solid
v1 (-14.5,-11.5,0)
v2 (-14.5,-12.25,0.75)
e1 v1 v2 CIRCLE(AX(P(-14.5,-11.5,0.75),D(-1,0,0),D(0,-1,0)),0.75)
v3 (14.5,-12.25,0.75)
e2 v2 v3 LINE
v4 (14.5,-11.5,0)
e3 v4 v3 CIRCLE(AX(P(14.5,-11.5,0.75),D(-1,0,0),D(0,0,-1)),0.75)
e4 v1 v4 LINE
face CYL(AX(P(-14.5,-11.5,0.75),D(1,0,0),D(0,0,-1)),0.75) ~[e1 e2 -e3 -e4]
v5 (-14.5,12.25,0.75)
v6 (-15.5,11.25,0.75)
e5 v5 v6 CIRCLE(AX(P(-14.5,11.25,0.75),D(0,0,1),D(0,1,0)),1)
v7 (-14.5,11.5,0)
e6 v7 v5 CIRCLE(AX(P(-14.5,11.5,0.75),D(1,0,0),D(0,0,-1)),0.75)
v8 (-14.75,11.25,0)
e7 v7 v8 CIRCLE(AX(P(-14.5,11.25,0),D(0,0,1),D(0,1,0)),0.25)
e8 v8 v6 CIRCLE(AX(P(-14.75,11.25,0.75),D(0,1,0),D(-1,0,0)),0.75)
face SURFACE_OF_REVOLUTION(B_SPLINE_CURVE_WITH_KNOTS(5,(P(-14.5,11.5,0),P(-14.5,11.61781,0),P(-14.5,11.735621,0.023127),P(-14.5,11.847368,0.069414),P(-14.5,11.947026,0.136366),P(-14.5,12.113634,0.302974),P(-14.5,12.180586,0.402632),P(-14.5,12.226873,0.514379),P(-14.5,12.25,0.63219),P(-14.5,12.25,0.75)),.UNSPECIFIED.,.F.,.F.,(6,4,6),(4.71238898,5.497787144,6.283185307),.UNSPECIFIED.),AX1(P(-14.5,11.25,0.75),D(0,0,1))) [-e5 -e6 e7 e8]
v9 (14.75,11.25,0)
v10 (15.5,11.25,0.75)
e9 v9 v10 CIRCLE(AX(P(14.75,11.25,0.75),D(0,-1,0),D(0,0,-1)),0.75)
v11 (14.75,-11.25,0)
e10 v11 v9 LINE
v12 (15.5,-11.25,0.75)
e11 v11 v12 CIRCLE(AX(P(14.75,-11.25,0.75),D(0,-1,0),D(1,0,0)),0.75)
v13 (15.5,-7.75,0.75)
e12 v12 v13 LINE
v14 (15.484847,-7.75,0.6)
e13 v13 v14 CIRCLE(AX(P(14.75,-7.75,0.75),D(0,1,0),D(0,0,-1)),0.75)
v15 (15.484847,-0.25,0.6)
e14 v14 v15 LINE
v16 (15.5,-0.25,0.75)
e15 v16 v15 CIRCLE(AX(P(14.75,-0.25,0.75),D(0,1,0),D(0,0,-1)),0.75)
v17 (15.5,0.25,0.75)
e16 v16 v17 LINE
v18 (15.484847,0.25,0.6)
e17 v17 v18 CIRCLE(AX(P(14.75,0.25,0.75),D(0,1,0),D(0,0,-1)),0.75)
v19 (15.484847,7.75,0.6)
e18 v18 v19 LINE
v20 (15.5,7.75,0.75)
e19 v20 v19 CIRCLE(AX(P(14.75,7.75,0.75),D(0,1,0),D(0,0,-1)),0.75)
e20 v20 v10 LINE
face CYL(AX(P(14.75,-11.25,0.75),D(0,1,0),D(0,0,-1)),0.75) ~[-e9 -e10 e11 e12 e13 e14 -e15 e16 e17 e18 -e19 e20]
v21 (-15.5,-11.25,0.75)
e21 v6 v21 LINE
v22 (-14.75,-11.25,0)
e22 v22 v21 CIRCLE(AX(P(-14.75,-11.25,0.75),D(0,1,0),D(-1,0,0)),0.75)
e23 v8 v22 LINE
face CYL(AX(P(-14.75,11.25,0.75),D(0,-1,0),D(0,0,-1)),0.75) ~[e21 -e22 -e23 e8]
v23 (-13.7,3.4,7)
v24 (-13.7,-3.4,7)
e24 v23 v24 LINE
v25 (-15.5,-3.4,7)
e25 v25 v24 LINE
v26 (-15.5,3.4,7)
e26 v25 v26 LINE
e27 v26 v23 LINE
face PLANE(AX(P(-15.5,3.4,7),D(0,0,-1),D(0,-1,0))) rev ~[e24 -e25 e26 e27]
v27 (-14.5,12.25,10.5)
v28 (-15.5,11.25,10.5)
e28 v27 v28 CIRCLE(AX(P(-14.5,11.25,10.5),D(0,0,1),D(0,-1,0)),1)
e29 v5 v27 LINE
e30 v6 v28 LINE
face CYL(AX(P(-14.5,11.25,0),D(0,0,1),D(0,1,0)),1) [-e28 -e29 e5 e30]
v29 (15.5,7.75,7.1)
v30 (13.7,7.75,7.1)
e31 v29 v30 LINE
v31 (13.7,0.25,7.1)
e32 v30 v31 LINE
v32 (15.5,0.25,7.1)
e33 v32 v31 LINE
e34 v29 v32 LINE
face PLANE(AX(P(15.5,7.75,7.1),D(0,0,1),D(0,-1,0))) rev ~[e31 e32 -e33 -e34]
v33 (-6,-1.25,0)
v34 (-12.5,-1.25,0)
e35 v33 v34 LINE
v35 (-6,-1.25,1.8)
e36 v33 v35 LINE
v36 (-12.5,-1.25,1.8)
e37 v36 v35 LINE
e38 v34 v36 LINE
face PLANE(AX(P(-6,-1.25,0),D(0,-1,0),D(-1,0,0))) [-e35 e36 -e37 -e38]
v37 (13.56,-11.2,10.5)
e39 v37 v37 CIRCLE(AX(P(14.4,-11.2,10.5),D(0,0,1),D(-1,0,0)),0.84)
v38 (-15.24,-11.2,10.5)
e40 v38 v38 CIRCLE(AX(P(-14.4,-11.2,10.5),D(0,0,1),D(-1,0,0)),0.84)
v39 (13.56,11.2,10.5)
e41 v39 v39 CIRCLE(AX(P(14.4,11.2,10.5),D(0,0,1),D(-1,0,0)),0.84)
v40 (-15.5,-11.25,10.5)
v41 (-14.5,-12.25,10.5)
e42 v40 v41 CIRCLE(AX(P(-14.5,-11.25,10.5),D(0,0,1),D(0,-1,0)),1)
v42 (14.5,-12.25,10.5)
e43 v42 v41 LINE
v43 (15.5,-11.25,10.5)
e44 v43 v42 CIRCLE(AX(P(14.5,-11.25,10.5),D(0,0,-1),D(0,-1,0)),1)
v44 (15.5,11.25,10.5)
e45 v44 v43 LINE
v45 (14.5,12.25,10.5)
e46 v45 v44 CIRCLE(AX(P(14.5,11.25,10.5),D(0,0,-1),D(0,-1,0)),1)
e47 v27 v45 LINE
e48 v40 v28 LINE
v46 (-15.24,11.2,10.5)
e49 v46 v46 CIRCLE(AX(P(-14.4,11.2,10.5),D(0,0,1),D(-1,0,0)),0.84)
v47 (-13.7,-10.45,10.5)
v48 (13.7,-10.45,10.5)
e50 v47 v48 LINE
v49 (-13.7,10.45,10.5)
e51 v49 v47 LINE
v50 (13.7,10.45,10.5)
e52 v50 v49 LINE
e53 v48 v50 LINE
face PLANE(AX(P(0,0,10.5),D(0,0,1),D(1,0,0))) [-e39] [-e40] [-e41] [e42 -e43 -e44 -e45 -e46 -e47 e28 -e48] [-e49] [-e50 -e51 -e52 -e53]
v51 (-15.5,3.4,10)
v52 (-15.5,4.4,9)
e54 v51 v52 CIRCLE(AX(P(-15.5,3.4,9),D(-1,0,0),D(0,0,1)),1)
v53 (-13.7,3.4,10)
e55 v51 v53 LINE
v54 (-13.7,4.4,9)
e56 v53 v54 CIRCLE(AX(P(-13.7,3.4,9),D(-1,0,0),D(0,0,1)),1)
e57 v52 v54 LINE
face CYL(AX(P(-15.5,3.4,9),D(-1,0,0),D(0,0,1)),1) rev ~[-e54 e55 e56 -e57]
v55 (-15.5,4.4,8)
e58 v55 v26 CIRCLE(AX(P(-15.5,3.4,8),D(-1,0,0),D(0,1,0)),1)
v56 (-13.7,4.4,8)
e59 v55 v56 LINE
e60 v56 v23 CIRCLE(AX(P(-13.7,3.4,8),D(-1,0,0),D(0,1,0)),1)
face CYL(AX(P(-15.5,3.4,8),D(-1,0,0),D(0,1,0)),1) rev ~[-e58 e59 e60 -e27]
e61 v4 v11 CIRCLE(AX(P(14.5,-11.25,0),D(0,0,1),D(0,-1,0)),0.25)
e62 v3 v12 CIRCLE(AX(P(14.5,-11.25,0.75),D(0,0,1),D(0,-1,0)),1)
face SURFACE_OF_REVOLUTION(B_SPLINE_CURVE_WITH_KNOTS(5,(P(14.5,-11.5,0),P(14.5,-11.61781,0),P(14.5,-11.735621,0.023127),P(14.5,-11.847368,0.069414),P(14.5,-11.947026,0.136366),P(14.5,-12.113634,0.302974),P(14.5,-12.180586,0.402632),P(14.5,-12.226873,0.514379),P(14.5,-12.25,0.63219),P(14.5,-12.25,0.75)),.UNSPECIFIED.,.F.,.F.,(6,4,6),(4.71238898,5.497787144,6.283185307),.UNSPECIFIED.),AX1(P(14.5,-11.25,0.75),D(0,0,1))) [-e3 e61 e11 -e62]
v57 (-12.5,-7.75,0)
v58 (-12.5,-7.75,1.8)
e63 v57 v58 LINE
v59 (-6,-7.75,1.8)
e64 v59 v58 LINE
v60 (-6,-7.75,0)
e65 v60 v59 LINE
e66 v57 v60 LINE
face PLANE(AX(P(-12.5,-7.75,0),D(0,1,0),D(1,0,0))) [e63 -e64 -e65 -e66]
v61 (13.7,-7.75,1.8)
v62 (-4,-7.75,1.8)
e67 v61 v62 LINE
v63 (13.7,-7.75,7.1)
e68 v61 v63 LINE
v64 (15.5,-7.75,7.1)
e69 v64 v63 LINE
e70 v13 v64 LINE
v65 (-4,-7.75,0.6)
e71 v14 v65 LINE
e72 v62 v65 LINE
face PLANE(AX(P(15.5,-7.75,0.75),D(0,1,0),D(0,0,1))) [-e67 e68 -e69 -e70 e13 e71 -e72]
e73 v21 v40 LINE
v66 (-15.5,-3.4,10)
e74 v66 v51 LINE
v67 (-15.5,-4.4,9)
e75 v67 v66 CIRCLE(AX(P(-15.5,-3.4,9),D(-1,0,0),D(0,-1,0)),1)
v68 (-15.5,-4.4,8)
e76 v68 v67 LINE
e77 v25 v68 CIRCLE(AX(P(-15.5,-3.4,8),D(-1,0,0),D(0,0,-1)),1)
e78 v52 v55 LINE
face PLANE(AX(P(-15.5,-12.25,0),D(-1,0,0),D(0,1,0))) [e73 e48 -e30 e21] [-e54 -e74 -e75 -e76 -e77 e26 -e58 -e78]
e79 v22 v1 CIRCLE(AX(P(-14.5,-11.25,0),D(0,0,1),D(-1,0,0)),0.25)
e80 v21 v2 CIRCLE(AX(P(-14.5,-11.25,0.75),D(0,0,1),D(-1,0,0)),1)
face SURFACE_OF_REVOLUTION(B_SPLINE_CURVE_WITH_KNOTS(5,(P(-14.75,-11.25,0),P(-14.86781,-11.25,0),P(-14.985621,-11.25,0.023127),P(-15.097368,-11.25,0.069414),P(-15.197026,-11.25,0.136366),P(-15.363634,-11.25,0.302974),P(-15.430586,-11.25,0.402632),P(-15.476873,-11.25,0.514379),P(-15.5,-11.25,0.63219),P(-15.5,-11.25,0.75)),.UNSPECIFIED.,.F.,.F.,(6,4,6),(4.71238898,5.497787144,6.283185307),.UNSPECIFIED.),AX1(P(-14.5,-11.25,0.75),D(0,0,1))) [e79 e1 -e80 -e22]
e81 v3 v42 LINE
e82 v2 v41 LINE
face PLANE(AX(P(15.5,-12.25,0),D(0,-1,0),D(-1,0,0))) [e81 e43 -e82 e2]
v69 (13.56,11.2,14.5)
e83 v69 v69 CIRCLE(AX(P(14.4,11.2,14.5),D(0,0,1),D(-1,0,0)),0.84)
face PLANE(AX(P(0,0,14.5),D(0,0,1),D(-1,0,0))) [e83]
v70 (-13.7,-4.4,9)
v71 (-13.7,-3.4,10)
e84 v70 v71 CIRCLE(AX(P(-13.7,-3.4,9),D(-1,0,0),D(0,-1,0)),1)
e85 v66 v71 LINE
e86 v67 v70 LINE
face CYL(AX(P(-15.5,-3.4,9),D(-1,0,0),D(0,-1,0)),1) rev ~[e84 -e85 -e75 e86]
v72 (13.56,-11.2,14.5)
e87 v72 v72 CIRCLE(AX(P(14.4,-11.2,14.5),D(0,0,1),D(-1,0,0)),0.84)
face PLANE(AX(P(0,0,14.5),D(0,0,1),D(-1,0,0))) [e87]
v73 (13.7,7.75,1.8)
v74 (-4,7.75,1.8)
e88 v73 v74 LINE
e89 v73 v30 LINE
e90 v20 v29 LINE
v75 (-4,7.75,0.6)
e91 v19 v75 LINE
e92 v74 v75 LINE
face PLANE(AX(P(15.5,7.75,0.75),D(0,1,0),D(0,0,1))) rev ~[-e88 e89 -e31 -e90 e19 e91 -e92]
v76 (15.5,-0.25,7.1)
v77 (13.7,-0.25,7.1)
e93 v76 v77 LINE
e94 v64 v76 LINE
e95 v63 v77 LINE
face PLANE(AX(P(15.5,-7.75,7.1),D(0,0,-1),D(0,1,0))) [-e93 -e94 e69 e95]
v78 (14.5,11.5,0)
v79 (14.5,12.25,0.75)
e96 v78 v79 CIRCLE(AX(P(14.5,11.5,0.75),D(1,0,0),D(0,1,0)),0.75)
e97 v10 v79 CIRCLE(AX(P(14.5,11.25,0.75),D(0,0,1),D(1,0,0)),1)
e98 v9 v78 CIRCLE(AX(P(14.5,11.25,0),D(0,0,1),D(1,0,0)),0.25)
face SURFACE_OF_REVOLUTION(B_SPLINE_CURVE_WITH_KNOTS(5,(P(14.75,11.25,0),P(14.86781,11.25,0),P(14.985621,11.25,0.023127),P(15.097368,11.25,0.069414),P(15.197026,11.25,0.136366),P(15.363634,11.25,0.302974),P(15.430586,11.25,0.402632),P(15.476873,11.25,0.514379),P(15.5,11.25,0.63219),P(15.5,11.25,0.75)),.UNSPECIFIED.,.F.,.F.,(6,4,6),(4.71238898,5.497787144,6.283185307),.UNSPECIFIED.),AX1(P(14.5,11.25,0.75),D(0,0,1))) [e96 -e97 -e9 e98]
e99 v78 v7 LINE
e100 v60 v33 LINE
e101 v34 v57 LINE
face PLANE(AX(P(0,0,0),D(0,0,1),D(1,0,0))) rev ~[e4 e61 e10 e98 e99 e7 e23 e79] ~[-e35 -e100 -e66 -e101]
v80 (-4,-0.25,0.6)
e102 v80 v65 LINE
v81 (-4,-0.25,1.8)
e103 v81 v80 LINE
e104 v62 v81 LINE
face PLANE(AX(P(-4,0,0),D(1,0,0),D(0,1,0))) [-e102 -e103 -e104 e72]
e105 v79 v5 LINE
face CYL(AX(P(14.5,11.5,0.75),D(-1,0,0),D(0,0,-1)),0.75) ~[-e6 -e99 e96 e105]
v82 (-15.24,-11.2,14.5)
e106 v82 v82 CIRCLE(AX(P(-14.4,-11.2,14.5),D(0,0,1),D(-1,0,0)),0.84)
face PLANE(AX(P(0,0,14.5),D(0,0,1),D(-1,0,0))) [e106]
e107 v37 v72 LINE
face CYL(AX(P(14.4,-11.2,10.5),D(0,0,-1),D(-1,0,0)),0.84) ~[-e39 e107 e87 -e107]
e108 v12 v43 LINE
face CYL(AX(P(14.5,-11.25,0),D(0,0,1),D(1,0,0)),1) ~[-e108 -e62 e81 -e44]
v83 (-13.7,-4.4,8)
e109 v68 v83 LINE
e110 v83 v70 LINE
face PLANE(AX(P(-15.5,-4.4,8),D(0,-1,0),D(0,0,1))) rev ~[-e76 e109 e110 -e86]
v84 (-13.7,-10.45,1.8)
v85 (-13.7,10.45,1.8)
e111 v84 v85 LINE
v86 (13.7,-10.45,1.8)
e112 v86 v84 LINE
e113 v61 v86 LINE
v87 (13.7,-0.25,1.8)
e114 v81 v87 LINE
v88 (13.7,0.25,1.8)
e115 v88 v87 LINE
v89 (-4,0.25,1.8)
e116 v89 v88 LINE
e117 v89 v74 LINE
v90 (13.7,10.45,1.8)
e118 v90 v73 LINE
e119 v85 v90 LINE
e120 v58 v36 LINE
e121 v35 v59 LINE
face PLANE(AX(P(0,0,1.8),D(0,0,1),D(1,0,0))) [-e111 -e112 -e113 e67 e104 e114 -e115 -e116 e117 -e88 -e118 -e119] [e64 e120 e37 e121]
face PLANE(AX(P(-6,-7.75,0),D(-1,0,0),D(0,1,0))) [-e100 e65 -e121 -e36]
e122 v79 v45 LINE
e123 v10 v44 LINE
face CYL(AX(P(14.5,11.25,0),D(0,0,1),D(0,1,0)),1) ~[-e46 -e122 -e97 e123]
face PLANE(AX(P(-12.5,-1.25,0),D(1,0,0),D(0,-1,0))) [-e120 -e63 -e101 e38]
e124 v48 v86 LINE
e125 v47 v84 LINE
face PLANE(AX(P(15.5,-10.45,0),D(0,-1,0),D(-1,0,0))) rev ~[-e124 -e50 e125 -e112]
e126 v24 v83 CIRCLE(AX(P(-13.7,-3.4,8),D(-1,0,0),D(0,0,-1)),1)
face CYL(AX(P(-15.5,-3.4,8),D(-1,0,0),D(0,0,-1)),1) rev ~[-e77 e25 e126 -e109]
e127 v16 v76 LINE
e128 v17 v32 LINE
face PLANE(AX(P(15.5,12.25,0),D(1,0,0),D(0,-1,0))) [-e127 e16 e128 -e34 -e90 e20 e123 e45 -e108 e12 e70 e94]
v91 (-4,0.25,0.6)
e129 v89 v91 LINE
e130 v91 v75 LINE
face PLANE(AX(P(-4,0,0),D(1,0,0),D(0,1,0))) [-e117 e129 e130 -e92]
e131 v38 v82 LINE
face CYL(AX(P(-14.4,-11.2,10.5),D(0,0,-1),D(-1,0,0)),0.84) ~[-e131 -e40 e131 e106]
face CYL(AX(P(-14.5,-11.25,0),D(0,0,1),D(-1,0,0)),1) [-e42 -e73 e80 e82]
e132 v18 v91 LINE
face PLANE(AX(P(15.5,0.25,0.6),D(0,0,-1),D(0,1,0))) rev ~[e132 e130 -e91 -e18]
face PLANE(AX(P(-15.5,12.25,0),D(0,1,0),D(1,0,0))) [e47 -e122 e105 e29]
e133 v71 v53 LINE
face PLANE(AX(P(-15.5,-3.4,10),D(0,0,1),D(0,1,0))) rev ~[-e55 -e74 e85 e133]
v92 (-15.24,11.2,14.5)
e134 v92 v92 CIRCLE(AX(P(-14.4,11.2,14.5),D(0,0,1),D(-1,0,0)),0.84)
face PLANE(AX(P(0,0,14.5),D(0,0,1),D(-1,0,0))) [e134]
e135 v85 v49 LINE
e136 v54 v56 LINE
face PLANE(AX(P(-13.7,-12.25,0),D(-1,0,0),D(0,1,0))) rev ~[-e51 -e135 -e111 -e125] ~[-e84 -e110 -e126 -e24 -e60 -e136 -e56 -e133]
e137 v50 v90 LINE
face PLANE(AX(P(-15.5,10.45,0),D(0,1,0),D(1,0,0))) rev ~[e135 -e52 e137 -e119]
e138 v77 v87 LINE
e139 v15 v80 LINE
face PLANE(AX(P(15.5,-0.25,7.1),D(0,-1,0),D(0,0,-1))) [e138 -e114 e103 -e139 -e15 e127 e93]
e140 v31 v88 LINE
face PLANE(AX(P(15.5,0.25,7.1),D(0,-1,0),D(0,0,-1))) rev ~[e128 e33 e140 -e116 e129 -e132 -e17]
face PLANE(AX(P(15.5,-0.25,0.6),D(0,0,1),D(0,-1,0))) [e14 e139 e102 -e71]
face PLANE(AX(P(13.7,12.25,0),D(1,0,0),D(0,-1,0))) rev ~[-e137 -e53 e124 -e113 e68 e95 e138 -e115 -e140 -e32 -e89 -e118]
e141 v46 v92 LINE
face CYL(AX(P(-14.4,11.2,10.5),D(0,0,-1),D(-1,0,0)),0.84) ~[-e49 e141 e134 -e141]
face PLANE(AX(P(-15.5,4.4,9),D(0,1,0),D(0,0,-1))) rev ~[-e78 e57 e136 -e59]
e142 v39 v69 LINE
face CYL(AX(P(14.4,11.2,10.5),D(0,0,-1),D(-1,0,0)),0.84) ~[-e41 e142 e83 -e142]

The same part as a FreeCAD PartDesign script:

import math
import FreeCAD as App
import Part
import Sketcher

V = App.Vector
Q = App.Units.Quantity


def edges_at(feature, points):
    """Names of the edges that pass closest to the given points."""
    edges = feature.Shape.Edges
    near = lambda p: min(range(len(edges)), key=lambda i: edges[i].distToShape(Part.Vertex(*p))[0])
    return sorted({f"Edge{near(p) + 1}" for p in points})


def faces_at(feature, points):
    """Names of the faces that lie closest to the given points."""
    faces = feature.Shape.Faces
    near = lambda p: min(range(len(faces)), key=lambda i: faces[i].distToShape(Part.Vertex(*p))[0])
    return sorted({f"Face{near(p) + 1}" for p in points})

doc = App.newDocument("Part")
body = doc.addObject("PartDesign::Body", "Body")

sketch1 = body.newObject("Sketcher::SketchObject", "Sketch")
sketch1.AttachmentSupport = (doc.getObject("XY_Plane"), [""])
sketch1.MapMode = "FlatFace"
sketch1.addGeometry([
    Part.LineSegment(V(16, 12, 0), V(-16, 12, 0)),
    Part.LineSegment(V(-16, 12, 0), V(-16, -12, 0)),
    Part.LineSegment(V(-16, -12, 0), V(16, -12, 0)),
    Part.LineSegment(V(16, -12, 0), V(16, 12, 0)),
], False)
sketch1.addConstraint([
    Sketcher.Constraint("Coincident", 0, 2, 1, 1),
    Sketcher.Constraint("Coincident", 1, 2, 2, 1),
    Sketcher.Constraint("Coincident", 2, 2, 3, 1),
    Sketcher.Constraint("Coincident", 3, 2, 0, 1),
    Sketcher.Constraint("Horizontal", 0),
    Sketcher.Constraint("Vertical", 1),
    Sketcher.Constraint("Horizontal", 2),
    Sketcher.Constraint("Vertical", 3),
    Sketcher.Constraint("Symmetric", 0, 2, 2, 2, -1, 1),
    Sketcher.Constraint("DistanceX", 0, 2, 0, 1, Q("31 mm")),
    Sketcher.Constraint("DistanceY", 1, 2, 1, 1, Q("24.5 mm")),
])
pad1 = body.newObject("PartDesign::Pad", "Pad")
pad1.Profile = sketch1
pad1.Length = 10.5
doc.recompute()

thickness = body.newObject("PartDesign::Thickness", "Thickness")
thickness.Base = (pad1, faces_at(pad1, [(-5.167, 4.083, 10.5)]))
thickness.Value = 1.8
thickness.Reversed = True
thickness.Join = "Intersection"

sketch2 = body.newObject("Sketcher::SketchObject", "Sketch001")
sketch2.AttachmentSupport = (doc.getObject("XY_Plane"), [""])
sketch2.MapMode = "FlatFace"
sketch2.AttachmentOffset = App.Placement(V(0, 0, 10.5), App.Rotation())
sketch2.addGeometry([
    Part.Circle(V(-14.4, 11.2, 0), V(0, 0, 1), 0.8),
    Part.Circle(V(14.4, 11.2, 0), V(0, 0, 1), 0.8),
    Part.Circle(V(14.4, -11.2, 0), V(0, 0, 1), 0.8),
    Part.Circle(V(-14.4, -11.2, 0), V(0, 0, 1), 0.8),
], False)
sketch2.addConstraint([
    Sketcher.Constraint("Equal", 0, 1),
    Sketcher.Constraint("Equal", 1, 2),
    Sketcher.Constraint("Equal", 2, 3),
    Sketcher.Constraint("Symmetric", 0, 3, 2, 3, -1, 1),
    Sketcher.Constraint("Symmetric", 1, 3, 3, 3, -1, 1),
    Sketcher.Constraint("Symmetric", 0, 3, 1, 3, -2),
    Sketcher.Constraint("Diameter", 0, Q("1.68 mm")),
    Sketcher.Constraint("DistanceX", 0, 3, -1, 1, Q("14.4 mm")),
    Sketcher.Constraint("DistanceY", -1, 1, 0, 3, Q("11.2 mm")),
])
pad2 = body.newObject("PartDesign::Pad", "Pad001")
pad2.Profile = sketch2
pad2.Length = 4
doc.recompute()

fillet = body.newObject("PartDesign::Fillet", "Fillet")
fillet.Base = (pad2, edges_at(pad2, [(15.5, -12.25, 5.25)]))
fillet.Radius = 1
doc.recompute()

fillet2 = body.newObject("PartDesign::Fillet", "Fillet001")
fillet2.Base = (fillet, edges_at(fillet, [(15.5, 12.25, 5.25)]))
fillet2.Radius = 1
doc.recompute()

fillet3 = body.newObject("PartDesign::Fillet", "Fillet002")
fillet3.Base = (fillet2, edges_at(fillet2, [(-15.5, 12.25, 5.25)]))
fillet3.Radius = 1
doc.recompute()

fillet4 = body.newObject("PartDesign::Fillet", "Fillet003")
fillet4.Base = (fillet3, edges_at(fillet3, [(-15.5, -12.25, 5.25)]))
fillet4.Radius = 1

sketch3 = body.newObject("Sketcher::SketchObject", "Sketch002")
sketch3.AttachmentSupport = (doc.getObject("YZ_Plane"), [""])
sketch3.MapMode = "FlatFace"
sketch3.AttachmentOffset = App.Placement(V(0, 0, -15.5), App.Rotation())
sketch3.addGeometry([
    Part.LineSegment(V(3.4, 7, 0), V(-3.4, 7, 0)),
    Part.ArcOfCircle(Part.Circle(V(-3.4, 8, 0), V(0, 0, 1), 1), math.radians(180), math.radians(270)),
    Part.LineSegment(V(-4.4, 8, 0), V(-4.4, 9, 0)),
    Part.ArcOfCircle(Part.Circle(V(-3.4, 9, 0), V(0, 0, 1), 1), math.radians(90), math.radians(180)),
    Part.LineSegment(V(-3.4, 10, 0), V(3.4, 10, 0)),
    Part.ArcOfCircle(Part.Circle(V(3.4, 9, 0), V(0, 0, 1), 1), math.radians(0), math.radians(90)),
    Part.LineSegment(V(4.4, 9, 0), V(4.4, 8, 0)),
    Part.ArcOfCircle(Part.Circle(V(3.4, 8, 0), V(0, 0, 1), 1), math.radians(-90), math.radians(0)),
], False)
sketch3.addConstraint([
    Sketcher.Constraint("Tangent", 0, 2, 1, 2),
    Sketcher.Constraint("Tangent", 1, 1, 2, 1),
    Sketcher.Constraint("Tangent", 2, 2, 3, 2),
    Sketcher.Constraint("Tangent", 3, 1, 4, 1),
    Sketcher.Constraint("Tangent", 4, 2, 5, 2),
    Sketcher.Constraint("Tangent", 5, 1, 6, 1),
    Sketcher.Constraint("Tangent", 6, 2, 7, 2),
    Sketcher.Constraint("Tangent", 7, 1, 0, 1),
    Sketcher.Constraint("Horizontal", 0),
    Sketcher.Constraint("Vertical", 2),
    Sketcher.Constraint("Horizontal", 4),
    Sketcher.Constraint("Vertical", 6),
    Sketcher.Constraint("Equal", 1, 3),
    Sketcher.Constraint("Equal", 3, 5),
    Sketcher.Constraint("Equal", 5, 7),
    Sketcher.Constraint("Radius", 1, Q("1 mm")),
    Sketcher.Constraint("DistanceY", 2, 1, 2, 2, Q("1 mm")),
    Sketcher.Constraint("DistanceY", -1, 1, 0, 2, Q("7 mm")),
    Sketcher.Constraint("DistanceX", 0, 2, 0, 1, Q("6.8 mm")),
    Sketcher.Constraint("DistanceX", 1, 3, -1, 1, Q("3.4 mm")),
])
pocket1 = body.newObject("PartDesign::Pocket", "Pocket")
pocket1.Profile = sketch3
pocket1.Length = 6
pocket1.Reversed = True
doc.recompute()

fillet5 = body.newObject("PartDesign::Fillet", "Fillet004")
fillet5.Base = (pocket1, edges_at(pocket1, [
    (-15.207, -11.957, 0),
    (-15.5, 0, 0),
    (-15.207, 11.957, 0),
    (0, 12.25, 0),
    (15.207, 11.957, 0),
    (15.5, 0, 0),
    (15.207, -11.957, 0),
    (0, -12.25, 0),
]))
fillet5.Radius = 0.75

sketch4 = body.newObject("Sketcher::SketchObject", "Sketch003")
sketch4.AttachmentSupport = (doc.getObject("XY_Plane"), [""])
sketch4.MapMode = "FlatFace"
sketch4.addGeometry([
    Part.LineSegment(V(-6, -8, 0), V(-12, -8, 0)),
    Part.LineSegment(V(-12, -8, 0), V(-12, -1, 0)),
    Part.LineSegment(V(-12, -1, 0), V(-6, -1, 0)),
    Part.LineSegment(V(-6, -1, 0), V(-6, -8, 0)),
], False)
sketch4.addConstraint([
    Sketcher.Constraint("Coincident", 0, 2, 1, 1),
    Sketcher.Constraint("Coincident", 1, 2, 2, 1),
    Sketcher.Constraint("Coincident", 2, 2, 3, 1),
    Sketcher.Constraint("Coincident", 3, 2, 0, 1),
    Sketcher.Constraint("Horizontal", 0),
    Sketcher.Constraint("Vertical", 1),
    Sketcher.Constraint("Horizontal", 2),
    Sketcher.Constraint("Vertical", 3),
    Sketcher.Constraint("Equal", 2, 1),
    Sketcher.Constraint("DistanceX", 0, 2, 0, 1, Q("6.5 mm")),
    Sketcher.Constraint("DistanceX", 2, 2, -1, 1, Q("6 mm")),
    Sketcher.Constraint("DistanceY", 0, 2, -1, 1, Q("7.75 mm")),
])
pocket2 = body.newObject("PartDesign::Pocket", "Pocket001")
pocket2.Profile = sketch4
pocket2.Length = 9
pocket2.Reversed = True

sketch5 = body.newObject("Sketcher::SketchObject", "Sketch004")
sketch5.AttachmentSupport = (doc.getObject("YZ_Plane"), [""])
sketch5.MapMode = "FlatFace"
sketch5.AttachmentOffset = App.Placement(V(0, 0, 15.5), App.Rotation())
sketch5.addGeometry([
    Part.LineSegment(V(-7.75, 7.1, 0), V(-7.75, 0.6, 0)),
    Part.LineSegment(V(-7.75, 0.6, 0), V(-0.25, 0.6, 0)),
    Part.LineSegment(V(-0.25, 0.6, 0), V(-0.25, 7.1, 0)),
    Part.LineSegment(V(-0.25, 7.1, 0), V(-7.75, 7.1, 0)),
    Part.LineSegment(V(0.25, 7.1, 0), V(0.25, 0.6, 0)),
    Part.LineSegment(V(0.25, 0.6, 0), V(7.75, 0.6, 0)),
    Part.LineSegment(V(7.75, 0.6, 0), V(7.75, 7.1, 0)),
    Part.LineSegment(V(7.75, 7.1, 0), V(0.25, 7.1, 0)),
], False)
sketch5.addConstraint([
    Sketcher.Constraint("Coincident", 0, 2, 1, 1),
    Sketcher.Constraint("Coincident", 1, 2, 2, 1),
    Sketcher.Constraint("Coincident", 2, 2, 3, 1),
    Sketcher.Constraint("Coincident", 3, 2, 0, 1),
    Sketcher.Constraint("Coincident", 4, 2, 5, 1),
    Sketcher.Constraint("Coincident", 5, 2, 6, 1),
    Sketcher.Constraint("Coincident", 6, 2, 7, 1),
    Sketcher.Constraint("Coincident", 7, 2, 4, 1),
    Sketcher.Constraint("Vertical", 0),
    Sketcher.Constraint("Horizontal", 1),
    Sketcher.Constraint("Vertical", 2),
    Sketcher.Constraint("Horizontal", 3),
    Sketcher.Constraint("Vertical", 4),
    Sketcher.Constraint("Horizontal", 5),
    Sketcher.Constraint("Vertical", 6),
    Sketcher.Constraint("Horizontal", 7),
    Sketcher.Constraint("Symmetric", 1, 2, 4, 2, -2),
    Sketcher.Constraint("Symmetric", 3, 2, 6, 2, -2),
    Sketcher.Constraint("DistanceX", 1, 1, 1, 2, Q("7.5 mm")),
    Sketcher.Constraint("DistanceY", 0, 2, 0, 1, Q("6.5 mm")),
    Sketcher.Constraint("DistanceX", 0, 2, 4, 2, Q("8 mm")),
    Sketcher.Constraint("DistanceY", -1, 1, 0, 2, Q("0.6 mm")),
])
pocket3 = body.newObject("PartDesign::Pocket", "Pocket002")
pocket3.Profile = sketch5
pocket3.Length = 19.5

doc.recompute()
